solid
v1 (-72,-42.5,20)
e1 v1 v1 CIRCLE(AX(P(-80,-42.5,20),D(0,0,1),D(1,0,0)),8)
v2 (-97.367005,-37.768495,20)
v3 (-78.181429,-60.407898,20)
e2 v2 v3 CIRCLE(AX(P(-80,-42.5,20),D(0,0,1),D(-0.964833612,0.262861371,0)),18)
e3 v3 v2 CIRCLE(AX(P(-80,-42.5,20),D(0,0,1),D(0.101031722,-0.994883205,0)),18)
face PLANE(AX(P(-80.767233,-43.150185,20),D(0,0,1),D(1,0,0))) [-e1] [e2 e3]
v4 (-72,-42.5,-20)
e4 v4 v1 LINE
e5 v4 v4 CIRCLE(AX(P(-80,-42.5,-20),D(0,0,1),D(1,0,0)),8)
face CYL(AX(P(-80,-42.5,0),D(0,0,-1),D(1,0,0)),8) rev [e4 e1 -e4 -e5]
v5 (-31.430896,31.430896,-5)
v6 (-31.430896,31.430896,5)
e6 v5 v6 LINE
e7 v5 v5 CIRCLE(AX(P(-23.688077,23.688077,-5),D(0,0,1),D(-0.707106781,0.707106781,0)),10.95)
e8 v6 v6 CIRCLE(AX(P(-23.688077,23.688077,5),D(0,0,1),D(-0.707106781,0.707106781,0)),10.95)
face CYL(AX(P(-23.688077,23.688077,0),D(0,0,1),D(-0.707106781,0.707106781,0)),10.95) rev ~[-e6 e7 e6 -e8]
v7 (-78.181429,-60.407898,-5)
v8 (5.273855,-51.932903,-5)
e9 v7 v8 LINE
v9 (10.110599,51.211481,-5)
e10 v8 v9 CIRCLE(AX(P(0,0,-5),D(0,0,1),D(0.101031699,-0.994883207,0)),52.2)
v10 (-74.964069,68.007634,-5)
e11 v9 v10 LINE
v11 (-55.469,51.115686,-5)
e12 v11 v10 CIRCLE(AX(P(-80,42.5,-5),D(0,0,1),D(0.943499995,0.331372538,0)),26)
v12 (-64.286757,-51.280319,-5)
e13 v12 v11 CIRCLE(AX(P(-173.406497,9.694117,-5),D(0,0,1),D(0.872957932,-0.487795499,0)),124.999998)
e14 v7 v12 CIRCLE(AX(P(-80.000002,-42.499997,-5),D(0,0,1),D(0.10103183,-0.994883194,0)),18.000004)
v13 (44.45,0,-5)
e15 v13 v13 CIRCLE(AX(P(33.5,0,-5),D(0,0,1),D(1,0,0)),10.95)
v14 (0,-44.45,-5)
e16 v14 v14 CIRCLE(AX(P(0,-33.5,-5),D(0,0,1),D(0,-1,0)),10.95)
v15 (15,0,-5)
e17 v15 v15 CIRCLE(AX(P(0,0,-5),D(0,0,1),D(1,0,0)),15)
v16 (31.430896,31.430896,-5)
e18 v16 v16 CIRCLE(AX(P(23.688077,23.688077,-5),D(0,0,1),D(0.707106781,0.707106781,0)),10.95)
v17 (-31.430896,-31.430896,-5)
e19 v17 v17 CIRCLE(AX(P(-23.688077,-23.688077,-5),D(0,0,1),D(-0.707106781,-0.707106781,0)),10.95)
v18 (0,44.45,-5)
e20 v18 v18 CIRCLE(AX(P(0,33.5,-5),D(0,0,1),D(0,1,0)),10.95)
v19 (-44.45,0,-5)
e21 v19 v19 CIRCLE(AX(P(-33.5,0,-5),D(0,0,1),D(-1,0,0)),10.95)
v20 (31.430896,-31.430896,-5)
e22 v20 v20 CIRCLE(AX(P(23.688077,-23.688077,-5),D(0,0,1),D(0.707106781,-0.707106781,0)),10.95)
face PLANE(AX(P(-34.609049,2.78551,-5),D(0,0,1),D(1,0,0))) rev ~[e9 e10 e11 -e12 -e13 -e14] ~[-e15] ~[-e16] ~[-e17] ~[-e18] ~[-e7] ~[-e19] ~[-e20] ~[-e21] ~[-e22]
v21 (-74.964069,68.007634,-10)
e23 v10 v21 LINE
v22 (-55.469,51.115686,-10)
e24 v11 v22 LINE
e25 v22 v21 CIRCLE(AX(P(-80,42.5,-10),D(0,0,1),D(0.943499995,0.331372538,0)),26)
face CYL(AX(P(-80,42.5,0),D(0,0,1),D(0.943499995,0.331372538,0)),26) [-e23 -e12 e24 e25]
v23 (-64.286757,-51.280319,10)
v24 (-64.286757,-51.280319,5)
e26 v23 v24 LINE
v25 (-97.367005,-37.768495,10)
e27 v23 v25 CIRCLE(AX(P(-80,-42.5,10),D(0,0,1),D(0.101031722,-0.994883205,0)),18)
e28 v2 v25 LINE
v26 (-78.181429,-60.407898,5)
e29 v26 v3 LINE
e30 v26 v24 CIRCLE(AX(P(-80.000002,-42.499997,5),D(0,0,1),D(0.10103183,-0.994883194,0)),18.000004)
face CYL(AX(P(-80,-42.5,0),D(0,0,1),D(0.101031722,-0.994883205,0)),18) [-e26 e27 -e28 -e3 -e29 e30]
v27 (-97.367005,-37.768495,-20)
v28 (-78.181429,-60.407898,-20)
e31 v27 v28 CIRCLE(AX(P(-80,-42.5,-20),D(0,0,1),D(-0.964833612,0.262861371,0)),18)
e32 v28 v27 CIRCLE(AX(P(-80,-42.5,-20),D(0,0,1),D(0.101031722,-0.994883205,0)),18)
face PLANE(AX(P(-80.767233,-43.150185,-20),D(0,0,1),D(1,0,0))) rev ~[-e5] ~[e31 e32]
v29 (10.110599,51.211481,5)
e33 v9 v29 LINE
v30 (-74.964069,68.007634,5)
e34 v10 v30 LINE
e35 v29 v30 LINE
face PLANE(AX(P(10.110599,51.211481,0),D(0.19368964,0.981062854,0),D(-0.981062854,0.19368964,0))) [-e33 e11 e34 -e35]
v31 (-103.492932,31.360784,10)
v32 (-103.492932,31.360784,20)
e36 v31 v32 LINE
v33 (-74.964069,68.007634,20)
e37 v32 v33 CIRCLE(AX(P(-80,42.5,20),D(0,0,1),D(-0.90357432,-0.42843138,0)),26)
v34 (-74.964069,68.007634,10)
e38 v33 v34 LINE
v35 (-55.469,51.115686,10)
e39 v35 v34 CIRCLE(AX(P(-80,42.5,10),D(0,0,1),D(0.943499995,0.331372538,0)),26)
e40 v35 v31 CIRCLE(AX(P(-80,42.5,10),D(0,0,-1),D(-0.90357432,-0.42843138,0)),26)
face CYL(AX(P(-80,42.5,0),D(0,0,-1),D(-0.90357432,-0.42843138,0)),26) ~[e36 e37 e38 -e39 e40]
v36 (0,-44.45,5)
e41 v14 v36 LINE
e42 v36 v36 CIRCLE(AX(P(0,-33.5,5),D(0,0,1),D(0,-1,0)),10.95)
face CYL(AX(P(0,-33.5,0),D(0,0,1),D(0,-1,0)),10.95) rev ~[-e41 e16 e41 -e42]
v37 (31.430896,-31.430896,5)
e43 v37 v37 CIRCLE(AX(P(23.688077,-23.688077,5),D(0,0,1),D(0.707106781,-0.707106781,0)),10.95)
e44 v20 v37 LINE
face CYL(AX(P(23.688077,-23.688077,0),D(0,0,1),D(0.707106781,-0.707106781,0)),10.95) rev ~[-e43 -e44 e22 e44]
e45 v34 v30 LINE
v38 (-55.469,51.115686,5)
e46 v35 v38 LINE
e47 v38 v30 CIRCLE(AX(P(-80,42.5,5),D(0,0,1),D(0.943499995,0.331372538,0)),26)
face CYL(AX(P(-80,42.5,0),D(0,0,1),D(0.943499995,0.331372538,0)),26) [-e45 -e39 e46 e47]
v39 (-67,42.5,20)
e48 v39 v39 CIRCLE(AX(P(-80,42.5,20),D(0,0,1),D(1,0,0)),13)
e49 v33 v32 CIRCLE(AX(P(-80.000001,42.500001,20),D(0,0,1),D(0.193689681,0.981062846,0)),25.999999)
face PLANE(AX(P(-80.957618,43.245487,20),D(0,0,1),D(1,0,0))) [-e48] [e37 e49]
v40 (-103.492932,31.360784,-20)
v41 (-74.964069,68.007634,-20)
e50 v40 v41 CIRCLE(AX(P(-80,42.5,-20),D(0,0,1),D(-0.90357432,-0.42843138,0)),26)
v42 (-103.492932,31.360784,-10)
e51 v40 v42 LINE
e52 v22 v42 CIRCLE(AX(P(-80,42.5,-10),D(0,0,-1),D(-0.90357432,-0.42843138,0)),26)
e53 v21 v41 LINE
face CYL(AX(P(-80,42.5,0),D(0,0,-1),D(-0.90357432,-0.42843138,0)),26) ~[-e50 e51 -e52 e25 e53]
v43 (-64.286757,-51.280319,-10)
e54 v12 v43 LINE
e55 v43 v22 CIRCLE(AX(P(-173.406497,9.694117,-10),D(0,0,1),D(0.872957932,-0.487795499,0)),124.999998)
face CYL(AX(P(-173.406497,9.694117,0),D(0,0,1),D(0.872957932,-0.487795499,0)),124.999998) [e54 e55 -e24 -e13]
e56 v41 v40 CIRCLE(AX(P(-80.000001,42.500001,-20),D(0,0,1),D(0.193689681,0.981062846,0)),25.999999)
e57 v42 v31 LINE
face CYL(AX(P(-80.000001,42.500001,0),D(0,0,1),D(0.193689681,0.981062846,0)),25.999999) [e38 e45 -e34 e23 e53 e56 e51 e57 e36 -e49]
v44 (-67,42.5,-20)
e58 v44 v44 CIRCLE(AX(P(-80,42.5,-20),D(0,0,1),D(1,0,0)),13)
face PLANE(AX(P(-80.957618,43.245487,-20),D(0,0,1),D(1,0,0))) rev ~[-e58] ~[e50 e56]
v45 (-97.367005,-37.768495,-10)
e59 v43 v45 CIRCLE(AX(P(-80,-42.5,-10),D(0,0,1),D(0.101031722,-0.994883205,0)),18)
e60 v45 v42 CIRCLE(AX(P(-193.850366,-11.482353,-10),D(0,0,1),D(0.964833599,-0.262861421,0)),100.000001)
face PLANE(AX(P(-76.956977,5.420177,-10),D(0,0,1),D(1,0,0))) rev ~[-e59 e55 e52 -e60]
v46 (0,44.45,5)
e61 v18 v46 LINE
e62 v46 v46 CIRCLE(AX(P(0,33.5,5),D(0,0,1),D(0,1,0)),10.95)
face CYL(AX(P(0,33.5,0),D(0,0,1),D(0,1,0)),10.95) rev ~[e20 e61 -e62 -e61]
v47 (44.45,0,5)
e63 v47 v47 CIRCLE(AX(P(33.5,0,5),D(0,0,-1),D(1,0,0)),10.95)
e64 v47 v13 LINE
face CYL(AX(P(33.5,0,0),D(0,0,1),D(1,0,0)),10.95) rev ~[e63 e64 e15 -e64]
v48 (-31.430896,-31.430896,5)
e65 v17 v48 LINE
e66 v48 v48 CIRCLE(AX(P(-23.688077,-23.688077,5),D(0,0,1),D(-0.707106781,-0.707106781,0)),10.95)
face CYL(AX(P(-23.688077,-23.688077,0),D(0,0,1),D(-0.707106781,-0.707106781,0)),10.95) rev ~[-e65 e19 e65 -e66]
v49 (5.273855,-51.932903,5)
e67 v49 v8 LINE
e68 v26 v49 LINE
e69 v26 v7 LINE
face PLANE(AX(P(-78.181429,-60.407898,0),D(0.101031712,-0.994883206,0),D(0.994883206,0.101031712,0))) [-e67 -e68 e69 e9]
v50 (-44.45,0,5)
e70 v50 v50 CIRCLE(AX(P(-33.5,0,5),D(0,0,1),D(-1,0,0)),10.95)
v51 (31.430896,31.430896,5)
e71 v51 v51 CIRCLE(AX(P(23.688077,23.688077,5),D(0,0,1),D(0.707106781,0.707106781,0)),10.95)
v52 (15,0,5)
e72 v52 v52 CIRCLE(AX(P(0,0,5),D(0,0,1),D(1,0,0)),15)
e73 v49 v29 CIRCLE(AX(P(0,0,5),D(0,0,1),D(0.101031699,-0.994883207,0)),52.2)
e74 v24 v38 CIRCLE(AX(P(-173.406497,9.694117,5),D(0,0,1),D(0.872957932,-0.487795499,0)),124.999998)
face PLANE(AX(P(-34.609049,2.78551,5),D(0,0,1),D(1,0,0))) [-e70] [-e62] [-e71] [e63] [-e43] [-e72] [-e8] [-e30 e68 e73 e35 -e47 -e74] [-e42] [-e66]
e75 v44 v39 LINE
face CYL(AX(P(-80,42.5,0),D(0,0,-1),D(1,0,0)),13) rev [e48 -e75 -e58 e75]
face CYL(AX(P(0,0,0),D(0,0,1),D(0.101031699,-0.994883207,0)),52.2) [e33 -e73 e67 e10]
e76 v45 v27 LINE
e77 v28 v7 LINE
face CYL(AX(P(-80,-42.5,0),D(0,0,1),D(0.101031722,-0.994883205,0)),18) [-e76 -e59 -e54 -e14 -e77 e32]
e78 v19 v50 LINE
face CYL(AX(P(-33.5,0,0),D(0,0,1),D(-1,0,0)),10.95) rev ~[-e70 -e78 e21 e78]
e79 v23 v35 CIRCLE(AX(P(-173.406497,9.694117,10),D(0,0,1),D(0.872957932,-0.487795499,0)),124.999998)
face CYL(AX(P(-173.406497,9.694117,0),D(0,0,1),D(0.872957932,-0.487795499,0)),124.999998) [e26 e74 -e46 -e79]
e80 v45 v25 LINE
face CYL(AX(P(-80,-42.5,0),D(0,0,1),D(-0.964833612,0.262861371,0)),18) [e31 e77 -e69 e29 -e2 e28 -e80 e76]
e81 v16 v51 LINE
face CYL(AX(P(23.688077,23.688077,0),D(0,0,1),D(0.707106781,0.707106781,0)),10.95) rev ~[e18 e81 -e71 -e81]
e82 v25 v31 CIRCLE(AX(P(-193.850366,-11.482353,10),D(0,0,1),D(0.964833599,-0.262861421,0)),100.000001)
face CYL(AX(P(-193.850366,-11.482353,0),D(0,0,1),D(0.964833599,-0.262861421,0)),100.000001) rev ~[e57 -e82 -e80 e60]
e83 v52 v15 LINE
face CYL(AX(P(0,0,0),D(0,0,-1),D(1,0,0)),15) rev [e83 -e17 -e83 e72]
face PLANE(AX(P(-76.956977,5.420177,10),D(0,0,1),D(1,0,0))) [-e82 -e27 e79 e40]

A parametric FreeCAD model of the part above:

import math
import FreeCAD as App
import Part
import Sketcher
from FreeCAD import Vector

doc = App.newDocument("Part")
body = doc.addObject("PartDesign::Body", "Body")

# Sketch on XY plane
sketch1 = body.newObject("Sketcher::SketchObject", "Sketch")
sketch1.AttachmentSupport = (doc.getObject("XY_Plane"), [""])
sketch1.MapMode = "FlatFace"
sketch1.addGeometry([
    Part.ArcOfCircle(Part.Circle(Vector(0, 0, 0), Vector(0, 0, 1), 52.2), math.radians(-84.201417), math.radians(78.831814)),  # 0
    Part.LineSegment(Vector(10.110599, 51.211481, 0), Vector(-74.964069, 68.007634, 0)),  # 1
    Part.ArcOfCircle(Part.Circle(Vector(-80.000001, 42.500001, 0), Vector(0, 0, 1), 25.999999), math.radians(78.831811), math.radians(205.368055)),  # 2
    Part.ArcOfCircle(Part.Circle(Vector(-193.850366, -11.482353, 0), Vector(0, 0, 1), 100.000001), math.radians(-15.239917), math.radians(25.368051)),  # 3
    Part.ArcOfCircle(Part.Circle(Vector(-80, -42.5, 0), Vector(0, 0, 1), 18), math.radians(164.760086), math.radians(275.798583)),  # 4
    Part.LineSegment(Vector(-78.181429, -60.407898, 0), Vector(5.273855, -51.932903, 0)),  # 5
    Part.Circle(Vector(-80, -42.5, 0), Vector(0, 0, 1), 8),  # 6
    Part.Circle(Vector(0, 0, 0), Vector(0, 0, 1), 15),  # 7
    Part.Circle(Vector(-80, 42.5, 0), Vector(0, 0, 1), 13),  # 8
], False)
sketch1.addConstraint([
    Sketcher.Constraint("Tangent", 0, 2, 1, 1),
    Sketcher.Constraint("Tangent", 1, 2, 2, 1),
    Sketcher.Constraint("Tangent", 2, 2, 3, 2),
    Sketcher.Constraint("Tangent", 3, 1, 4, 1),
    Sketcher.Constraint("Tangent", 4, 2, 5, 1),
    Sketcher.Constraint("Tangent", 5, 2, 0, 1),
    Sketcher.Constraint("Coincident", 0, 3, -1, 1),
    Sketcher.Constraint("Coincident", 7, 3, -1, 1),
    Sketcher.Constraint("Coincident", 6, 3, 4, 3),
    Sketcher.Constraint("Coincident", 8, 3, 2, 3),
    Sketcher.Constraint("Symmetric", 2, 3, 4, 3, -1),
    Sketcher.Constraint("Diameter", 6, 16.0),
    Sketcher.Constraint("Diameter", 7, 30.0),
    Sketcher.Constraint("Diameter", 8, 26.0),
    Sketcher.Constraint("Radius", 2, 25.999999),
    Sketcher.Constraint("Radius", 3, 100.000001),
    Sketcher.Constraint("Radius", 4, 18.0),
    Sketcher.Constraint("Radius", 0, 52.2),
    Sketcher.Constraint("DistanceX", 2, 3, -1, 1, 80.000001),
    Sketcher.Constraint("DistanceY", 4, 3, 2, 3, 85.0),
])
pad1 = body.newObject("PartDesign::Pad", "Pad")
pad1.Profile = sketch1
pad1.Length = 10
pad1.Midplane = True

# Sketch on XY plane
sketch2 = body.newObject("Sketcher::SketchObject", "Sketch001")
sketch2.AttachmentSupport = (doc.getObject("XY_Plane"), [""])
sketch2.MapMode = "FlatFace"
sketch2.addGeometry(Part.Circle(Vector(33.5, 0, 0), Vector(0, 0, 1), 10.95), False)
sketch2.addConstraint([
    Sketcher.Constraint("PointOnObject", 0, 3, -1),
    Sketcher.Constraint("Diameter", 0, 21.9),
    Sketcher.Constraint("DistanceX", -1, 1, 0, 3, 33.5),
])
pocket1 = body.newObject("PartDesign::Pocket", "Pocket")
pocket1.Profile = sketch2
pocket1.Type = "ThroughAll"
pocket1.Midplane = True
doc.recompute()

polarpattern = body.newObject("PartDesign::PolarPattern", "PolarPattern")
polarpattern.Originals = [pocket1]
polarpattern.Axis = (doc.getObject("Z_Axis"), [""])
polarpattern.Angle = 360
polarpattern.Occurrences = 8
body.Tip = polarpattern

# Sketch on XY plane
sketch3 = body.newObject("Sketcher::SketchObject", "Sketch002")
sketch3.AttachmentSupport = (doc.getObject("XY_Plane"), [""])
sketch3.MapMode = "FlatFace"
sketch3.addGeometry([
    Part.ArcOfCircle(Part.Circle(Vector(-80.000001, 42.500001, 0), Vector(0, 0, 1), 25.999999), math.radians(78.831811), math.radians(205.368055)),  # 0
    Part.ArcOfCircle(Part.Circle(Vector(-193.850366, -11.482353, 0), Vector(0, 0, 1), 100.000001), math.radians(-15.239917), math.radians(25.368051)),  # 1
    Part.ArcOfCircle(Part.Circle(Vector(-80, -42.5, 0), Vector(0, 0, 1), 18), math.radians(164.760086), math.radians(275.798583)),  # 2
    Part.ArcOfCircle(Part.Circle(Vector(-80.000002, -42.499997, 0), Vector(0, 0, 1), 18.000004), math.radians(-84.201409), math.radians(-29.195794)),  # 3
    Part.ArcOfCircle(Part.Circle(Vector(-173.406497, 9.694117, 0), Vector(0, 0, 1), 124.999998), math.radians(-29.195789), math.radians(19.352105)),  # 4
    Part.ArcOfCircle(Part.Circle(Vector(-80, 42.5, 0), Vector(0, 0, 1), 26), math.radians(19.352104), math.radians(78.831814)),  # 5
    Part.Circle(Vector(-80, -42.5, 0), Vector(0, 0, 1), 8),  # 6
    Part.Circle(Vector(-80, 42.5, 0), Vector(0, 0, 1), 13),  # 7
], False)
sketch3.addConstraint([
    Sketcher.Constraint("Tangent", 0, 2, 1, 2),
    Sketcher.Constraint("Tangent", 1, 1, 2, 1),
    Sketcher.Constraint("Tangent", 2, 2, 3, 1),
    Sketcher.Constraint("Tangent", 3, 2, 4, 1),
    Sketcher.Constraint("Tangent", 4, 2, 5, 1),
    Sketcher.Constraint("Tangent", 5, 2, 0, 1),
    Sketcher.Constraint("Coincident", 6, 3, 2, 3),
    Sketcher.Constraint("Coincident", 7, 3, 0, 3),
    Sketcher.Constraint("Equal", 0, 5),
    Sketcher.Constraint("Symmetric", 0, 3, 2, 3, -1),
    Sketcher.Constraint("Vertical", 0, 3, 3, 3),
    Sketcher.Constraint("Diameter", 6, 16.0),
    Sketcher.Constraint("Diameter", 7, 26.0),
    Sketcher.Constraint("Radius", 0, 25.999999),
    Sketcher.Constraint("Radius", 1, 100.000001),
    Sketcher.Constraint("Radius", 2, 18.0),
    Sketcher.Constraint("DistanceX", 0, 3, -1, 1, 80.000001),
    Sketcher.Constraint("DistanceY", 2, 3, 0, 3, 85.0),
    Sketcher.Constraint("Radius", 4, 124.999998),
    Sketcher.Constraint("DistanceY", 2, 2, -1, 1, 60.407898),
    Sketcher.Constraint("DistanceX", 5, 2, -1, 1, 74.964069),
])
pad2 = body.newObject("PartDesign::Pad", "Pad001")
pad2.Profile = sketch3
pad2.Length = 20
pad2.Midplane = True

# Sketch on XY plane
sketch4 = body.newObject("Sketcher::SketchObject", "Sketch003")
sketch4.AttachmentSupport = (doc.getObject("XY_Plane"), [""])
sketch4.MapMode = "FlatFace"
sketch4.addGeometry([
    Part.ArcOfCircle(Part.Circle(Vector(-80.000001, 42.500001, 0), Vector(0, 0, 1), 25.999999), math.radians(78.831811), math.radians(205.368055)),  # 0
    Part.ArcOfCircle(Part.Circle(Vector(-80, 42.5, 0), Vector(0, 0, 1), 26), math.radians(-154.631947), math.radians(78.831814)),  # 1
    Part.Circle(Vector(-80, 42.5, 0), Vector(0, 0, 1), 13),  # 2
    Part.ArcOfCircle(Part.Circle(Vector(-80, -42.5, 0), Vector(0, 0, 1), 18), math.radians(164.760086), math.radians(275.798583)),  # 3
    Part.ArcOfCircle(Part.Circle(Vector(-80, -42.5, 0), Vector(0, 0, 1), 18), math.radians(-84.201415), math.radians(164.760085)),  # 4
    Part.Circle(Vector(-80, -42.5, 0), Vector(0, 0, 1), 8),  # 5
], False)
sketch4.addConstraint([
    Sketcher.Constraint("Tangent", 0, 1, 1, 2),
    Sketcher.Constraint("Coincident", 1, 1, 0, 2),
    Sketcher.Constraint("Tangent", 3, 1, 4, 2),
    Sketcher.Constraint("Coincident", 4, 1, 3, 2),
    Sketcher.Constraint("Coincident", 2, 3, 0, 3),
    Sketcher.Constraint("Coincident", 5, 3, 3, 3),
    Sketcher.Constraint("Symmetric", 0, 3, 3, 3, -1),
    Sketcher.Constraint("Diameter", 2, 26.0),
    Sketcher.Constraint("Diameter", 5, 16.0),
    Sketcher.Constraint("Radius", 0, 25.999999),
    Sketcher.Constraint("Radius", 3, 18.0),
    Sketcher.Constraint("DistanceX", 0, 3, -1, 1, 80.000001),
    Sketcher.Constraint("DistanceY", 3, 3, 1, 3, 85.0),
    Sketcher.Constraint("DistanceY", 4, 1, 3, 3, 17.907898),
    Sketcher.Constraint("DistanceX", 0, 1, -1, 1, 74.964069),
    Sketcher.Constraint("DistanceX", 1, 1, -1, 1, 103.492932),
    Sketcher.Constraint("DistanceY", 3, 1, 1, 1, 69.129279),
])
pad3 = body.newObject("PartDesign::Pad", "Pad002")
pad3.Profile = sketch4
pad3.Length = 40
pad3.Midplane = True

doc.recompute()
